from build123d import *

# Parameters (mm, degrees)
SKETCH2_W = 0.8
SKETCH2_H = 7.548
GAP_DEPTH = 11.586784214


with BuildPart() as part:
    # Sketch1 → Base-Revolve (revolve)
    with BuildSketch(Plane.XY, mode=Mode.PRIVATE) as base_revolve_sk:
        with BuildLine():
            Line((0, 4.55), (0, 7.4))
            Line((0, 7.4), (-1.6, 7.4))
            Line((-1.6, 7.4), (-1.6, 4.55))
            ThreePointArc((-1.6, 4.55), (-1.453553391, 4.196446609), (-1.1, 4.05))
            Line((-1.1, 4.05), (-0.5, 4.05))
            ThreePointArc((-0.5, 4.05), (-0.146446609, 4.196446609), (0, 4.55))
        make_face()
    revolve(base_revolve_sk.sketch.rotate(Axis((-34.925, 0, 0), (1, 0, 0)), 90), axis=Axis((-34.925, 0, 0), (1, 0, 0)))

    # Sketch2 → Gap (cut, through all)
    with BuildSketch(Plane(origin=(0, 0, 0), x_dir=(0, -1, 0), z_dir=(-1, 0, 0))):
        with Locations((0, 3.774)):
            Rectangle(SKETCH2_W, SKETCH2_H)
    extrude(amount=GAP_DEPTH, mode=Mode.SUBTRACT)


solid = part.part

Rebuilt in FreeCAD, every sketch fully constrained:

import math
import FreeCAD as App
import Part
import Sketcher

doc = App.newDocument("Part")
body = doc.addObject("PartDesign::Body", "Body")

sketch1 = doc.addObject("Sketcher::SketchObject", "Sketch")
body.addObject(sketch1)
sketch1.AttachmentSupport = (doc.XY_Plane, [""])
sketch1.MapMode = "FlatFace"
sketch1.addGeometry([
    Part.LineSegment(App.Vector(0, 4.55, 0), App.Vector(0, 7.4, 0)),
    Part.LineSegment(App.Vector(0, 7.4, 0), App.Vector(-1.6, 7.4, 0)),
    Part.LineSegment(App.Vector(-1.6, 7.4, 0), App.Vector(-1.6, 4.55, 0)),
    Part.ArcOfCircle(Part.Circle(App.Vector(-1.1, 4.55, 0), App.Vector(0, 0, 1), 0.5), math.radians(180), math.radians(270)),
    Part.LineSegment(App.Vector(-1.1, 4.05, 0), App.Vector(-0.5, 4.05, 0)),
    Part.ArcOfCircle(Part.Circle(App.Vector(-0.5, 4.55, 0), App.Vector(0, 0, 1), 0.5), math.radians(-90), math.radians(0)),
], False)
sketch1.addConstraint([
    Sketcher.Constraint("Coincident", 0, 2, 1, 1),
    Sketcher.Constraint("Coincident", 1, 2, 2, 1),
    Sketcher.Constraint("Tangent", 2, 2, 3, 1),
    Sketcher.Constraint("Tangent", 3, 2, 4, 1),
    Sketcher.Constraint("Tangent", 4, 2, 5, 1),
    Sketcher.Constraint("Tangent", 5, 2, 0, 1),
    Sketcher.Constraint("Vertical", 0),
    Sketcher.Constraint("Horizontal", 1),
    Sketcher.Constraint("Vertical", 2),
    Sketcher.Constraint("Horizontal", 4),
    Sketcher.Constraint("Equal", 3, 5),
    Sketcher.Constraint("PointOnObject", 0, 2, -2),
    Sketcher.Constraint("Radius", 3, 0.5),
    Sketcher.Constraint("DistanceX", 1, 2, 1, 1, 1.6),
    Sketcher.Constraint("DistanceY", 0, 1, 0, 2, 2.85),
    Sketcher.Constraint("DistanceY", -1, 1, 0, 2, 7.4),
])
revolution = doc.addObject("PartDesign::Revolution", "Revolution")
body.addObject(revolution)
revolution.Profile = sketch1
revolution.ReferenceAxis = (sketch1, ["H_Axis"])
revolution.Angle = 360

sketch2 = doc.addObject("Sketcher::SketchObject", "Sketch001")
body.addObject(sketch2)
sketch2.AttachmentSupport = (doc.YZ_Plane, [""])
sketch2.MapMode = "FlatFace"
sketch2.addGeometry([
    Part.LineSegment(App.Vector(0.4, 7.5, 0), App.Vector(0.4, 0, 0)),
    Part.LineSegment(App.Vector(0.4, 0, 0), App.Vector(-0.4, 0, 0)),
    Part.LineSegment(App.Vector(-0.4, 0, 0), App.Vector(-0.4, 7.5, 0)),
    Part.LineSegment(App.Vector(-0.4, 7.5, 0), App.Vector(0.4, 7.5, 0)),
], False)
sketch2.addConstraint([
    Sketcher.Constraint("Coincident", 0, 2, 1, 1),
    Sketcher.Constraint("Coincident", 1, 2, 2, 1),
    Sketcher.Constraint("Coincident", 2, 2, 3, 1),
    Sketcher.Constraint("Coincident", 3, 2, 0, 1),
    Sketcher.Constraint("Vertical", 0),
    Sketcher.Constraint("Horizontal", 1),
    Sketcher.Constraint("Vertical", 2),
    Sketcher.Constraint("Horizontal", 3),
    Sketcher.Constraint("Symmetric", 0, 2, 1, 2, -1, 1),
    Sketcher.Constraint("DistanceX", 1, 2, 1, 1, 0.8),
    Sketcher.Constraint("DistanceY", 0, 2, 0, 1, 7.548),
])
pocket1 = doc.addObject("PartDesign::Pocket", "Pocket")
body.addObject(pocket1)
pocket1.Profile = sketch2
pocket1.Type = "ThroughAll"

doc.recompute()
